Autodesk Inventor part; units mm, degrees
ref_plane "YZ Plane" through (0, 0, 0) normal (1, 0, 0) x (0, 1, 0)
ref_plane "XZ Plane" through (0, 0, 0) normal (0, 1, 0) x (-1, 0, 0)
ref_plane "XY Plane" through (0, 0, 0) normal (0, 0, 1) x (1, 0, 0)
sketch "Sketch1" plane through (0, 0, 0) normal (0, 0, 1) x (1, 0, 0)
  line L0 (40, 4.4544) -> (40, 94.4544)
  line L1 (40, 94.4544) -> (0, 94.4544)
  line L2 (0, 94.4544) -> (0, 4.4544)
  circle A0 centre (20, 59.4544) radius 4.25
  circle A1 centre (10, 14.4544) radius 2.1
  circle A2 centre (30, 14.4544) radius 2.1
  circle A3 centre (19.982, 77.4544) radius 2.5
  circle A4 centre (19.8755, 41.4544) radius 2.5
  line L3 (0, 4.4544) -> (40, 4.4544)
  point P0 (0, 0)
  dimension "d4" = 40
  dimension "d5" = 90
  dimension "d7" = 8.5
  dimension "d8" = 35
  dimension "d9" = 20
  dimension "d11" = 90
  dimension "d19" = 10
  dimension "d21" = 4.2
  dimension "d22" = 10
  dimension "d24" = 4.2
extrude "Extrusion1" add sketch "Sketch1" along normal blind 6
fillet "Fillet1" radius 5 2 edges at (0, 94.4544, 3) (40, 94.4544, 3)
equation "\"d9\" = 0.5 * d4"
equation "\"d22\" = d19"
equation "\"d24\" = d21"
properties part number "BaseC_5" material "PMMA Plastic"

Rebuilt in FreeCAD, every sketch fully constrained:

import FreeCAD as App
import Part
import Sketcher
from FreeCAD import Vector


def edges_at(feature, points):
    """Names of the edges that pass closest to the given points."""
    edges = feature.Shape.Edges
    near = lambda p: min(range(len(edges)), key=lambda i: edges[i].distToShape(Part.Vertex(*p))[0])
    return sorted({f"Edge{near(p) + 1}" for p in points})


def add_polygon(sketch, points):
    """Adds a closed chain of lines whose ends are joined by coincident constraints."""
    first, n = sketch.GeometryCount, len(points)
    for a, b in zip(points, points[1:] + points[:1]):
        sketch.addGeometry(Part.LineSegment(App.Vector(*a, 0), App.Vector(*b, 0)), False)
    for i in range(n):
        sketch.addConstraint(Sketcher.Constraint("Coincident", first + i, 2, first + (i + 1) % n, 1))

doc = App.newDocument("Part")
params = doc.addObject("Spreadsheet::Sheet", "Params")
for row, (alias, value) in enumerate([
    ("sketch1_diameter", "4.2 mm"),
    ("sketch1_diameter2", "8.5 mm"),
    ("sketch1_width", "40 mm"),
    ("sketch1_height", "90 mm"),
    ("sketch1_diameter3", "5 mm"),
    ("pad1_length", "6 mm"),
    ("fillet_radius", "5 mm"),
], start=1):
    params.set(f"A{row}", alias)
    params.set(f"B{row}", "=" + value)
    params.setAlias(f"B{row}", alias)

body = doc.addObject("PartDesign::Body", "Body")

sketch1 = body.newObject("Sketcher::SketchObject", "Sketch")
sketch1.AttachmentSupport = (doc.getObject("XY_Plane"), [""])
sketch1.MapMode = "FlatFace"
add_polygon(sketch1, [(0, 4.5), (40, 4.5), (40, 94.5), (0, 94.5)])
sketch1.addGeometry(Part.Circle(Vector(10, 14.5, 0), Vector(0, 0, 1), 2.1), False)
sketch1.addGeometry(Part.Circle(Vector(19.9, 41.5, 0), Vector(0, 0, 1), 2.5), False)
sketch1.addGeometry(Part.Circle(Vector(30, 14.5, 0), Vector(0, 0, 1), 2.1), False)
sketch1.addGeometry(Part.Circle(Vector(20, 77.5, 0), Vector(0, 0, 1), 2.5), False)
sketch1.addGeometry(Part.Circle(Vector(20, 59.5, 0), Vector(0, 0, 1), 4.2), False)
sketch1.addConstraint(Sketcher.Constraint("Horizontal", 0))
sketch1.addConstraint(Sketcher.Constraint("Vertical", 1))
sketch1.addConstraint(Sketcher.Constraint("Horizontal", 2))
sketch1.addConstraint(Sketcher.Constraint("Vertical", 3))
sketch1.addConstraint(Sketcher.Constraint("Equal", 4, 6))
sketch1.addConstraint(Sketcher.Constraint("Equal", 5, 7))
sketch1.addConstraint(Sketcher.Constraint("PointOnObject", 2, 2, -2))
sketch1.addConstraint(Sketcher.Constraint("Horizontal", 4, 3, 6, 3))
sketch1.addConstraint(Sketcher.Constraint("Diameter", 4, 4.2))
sketch1.addConstraint(Sketcher.Constraint("Diameter", 8, 8.5))
sketch1.addConstraint(Sketcher.Constraint("DistanceX", 0, 1, 0, 2, 40.0))
sketch1.addConstraint(Sketcher.Constraint("DistanceY", 1, 1, 1, 2, 90.0))
sketch1.addConstraint(Sketcher.Constraint("Diameter", 5, 5.0))
sketch1.addConstraint(Sketcher.Constraint("DistanceX", -1, 1, 4, 3, 10.0))
sketch1.addConstraint(Sketcher.Constraint("DistanceX", -1, 1, 8, 3, 20.0))
sketch1.addConstraint(Sketcher.Constraint("DistanceX", 4, 3, 6, 3, 20.0))
sketch1.addConstraint(Sketcher.Constraint("DistanceY", 0, 2, 6, 3, 10.0))
sketch1.addConstraint(Sketcher.Constraint("DistanceY", 8, 3, 1, 2, 35.0))
sketch1.addConstraint(Sketcher.Constraint("DistanceY", 4, 3, 5, 3, 27.0))
sketch1.addConstraint(Sketcher.Constraint("DistanceY", 5, 3, 7, 3, 36.0))
sketch1.addConstraint(Sketcher.Constraint("DistanceX", -1, 1, 7, 3, 19.982))
sketch1.addConstraint(Sketcher.Constraint("DistanceY", -1, 1, 4, 3, 14.4544))
sketch1.addConstraint(Sketcher.Constraint("DistanceX", -1, 1, 5, 3, 19.8755))
sketch1.setExpression("Constraints[12]", "Params.sketch1_diameter")
sketch1.setExpression("Constraints[13]", "Params.sketch1_diameter2")
sketch1.setExpression("Constraints[14]", "Params.sketch1_width")
sketch1.setExpression("Constraints[15]", "Params.sketch1_height")
sketch1.setExpression("Constraints[16]", "Params.sketch1_diameter3")
pad1 = body.newObject("PartDesign::Pad", "Pad")
pad1.Profile = sketch1
pad1.setExpression("Length", "Params.pad1_length")
doc.recompute()

fillet = body.newObject("PartDesign::Fillet", "Fillet")
fillet.Base = (pad1, edges_at(pad1, [(0, 94.454, 3), (40, 94.454, 3)]))
fillet.setExpression("Radius", "Params.fillet_radius")

doc.recompute()
